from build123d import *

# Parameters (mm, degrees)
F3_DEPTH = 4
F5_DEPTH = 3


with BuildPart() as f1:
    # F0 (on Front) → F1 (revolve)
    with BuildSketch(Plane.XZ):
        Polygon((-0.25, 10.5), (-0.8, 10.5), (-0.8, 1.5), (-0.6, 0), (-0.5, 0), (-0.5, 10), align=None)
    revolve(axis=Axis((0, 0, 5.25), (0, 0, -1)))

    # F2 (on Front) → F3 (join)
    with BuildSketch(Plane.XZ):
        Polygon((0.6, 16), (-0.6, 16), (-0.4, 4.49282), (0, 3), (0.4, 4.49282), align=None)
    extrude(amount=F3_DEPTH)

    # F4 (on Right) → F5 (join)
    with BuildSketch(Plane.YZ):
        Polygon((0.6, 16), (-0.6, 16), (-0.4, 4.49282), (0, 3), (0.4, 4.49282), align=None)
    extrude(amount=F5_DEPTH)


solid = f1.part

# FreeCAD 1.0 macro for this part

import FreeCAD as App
import Part
import Sketcher

V = App.Vector
Q = App.Units.Quantity

doc = App.newDocument("Part")
body = doc.addObject("PartDesign::Body", "Body")

sketch1 = doc.addObject("Sketcher::SketchObject", "Sketch")
body.addObject(sketch1)
sketch1.AttachmentSupport = (doc.XZ_Plane, [""])
sketch1.MapMode = "FlatFace"
sketch1.addGeometry([
    Part.LineSegment(V(-0.25, 10.5, 0), V(-0.8, 10.5, 0)),
    Part.LineSegment(V(-0.8, 10.5, 0), V(-0.8, 1.5, 0)),
    Part.LineSegment(V(-0.8, 1.5, 0), V(-0.6, 0, 0)),
    Part.LineSegment(V(-0.6, 0, 0), V(-0.5, 0, 0)),
    Part.LineSegment(V(-0.5, 0, 0), V(-0.5, 10, 0)),
    Part.LineSegment(V(-0.5, 10, 0), V(-0.25, 10.5, 0)),
], False)
sketch1.addConstraint([
    Sketcher.Constraint("Coincident", 0, 2, 1, 1),
    Sketcher.Constraint("Coincident", 1, 2, 2, 1),
    Sketcher.Constraint("Coincident", 2, 2, 3, 1),
    Sketcher.Constraint("Coincident", 3, 2, 4, 1),
    Sketcher.Constraint("Coincident", 4, 2, 5, 1),
    Sketcher.Constraint("Coincident", 5, 2, 0, 1),
    Sketcher.Constraint("Horizontal", 0),
    Sketcher.Constraint("Vertical", 1),
    Sketcher.Constraint("Horizontal", 3),
    Sketcher.Constraint("Vertical", 4),
    Sketcher.Constraint("PointOnObject", 2, 2, -1),
    Sketcher.Constraint("DistanceY", 1, 2, 1, 1, Q("9 mm")),
    Sketcher.Constraint("DistanceY", 4, 1, 4, 2, Q("10 mm")),
    Sketcher.Constraint("DistanceX", 3, 1, 3, 2, Q("0.1 mm")),
    Sketcher.Constraint("DistanceX", 0, 2, 0, 1, Q("0.55 mm")),
    Sketcher.Constraint("DistanceX", 0, 2, -1, 1, Q("0.8 mm")),
    Sketcher.Constraint("DistanceY", -1, 1, 0, 2, Q("10.5 mm")),
    Sketcher.Constraint("DistanceX", 2, 2, -1, 1, Q("0.6 mm")),
])
revolution = doc.addObject("PartDesign::Revolution", "Revolution")
body.addObject(revolution)
revolution.Profile = sketch1
revolution.ReferenceAxis = (sketch1, ["V_Axis"])
revolution.Angle = 360

sketch2 = doc.addObject("Sketcher::SketchObject", "Sketch001")
body.addObject(sketch2)
sketch2.AttachmentSupport = (doc.XZ_Plane, [""])
sketch2.MapMode = "FlatFace"
sketch2.addGeometry([
    Part.LineSegment(V(0.6, 16, 0), V(-0.6, 16, 0)),
    Part.LineSegment(V(-0.6, 16, 0), V(-0.4, 4.5, 0)),
    Part.LineSegment(V(-0.4, 4.5, 0), V(0, 3, 0)),
    Part.LineSegment(V(0, 3, 0), V(0.4, 4.5, 0)),
    Part.LineSegment(V(0.4, 4.5, 0), V(0.6, 16, 0)),
], False)
sketch2.addConstraint([
    Sketcher.Constraint("Coincident", 0, 2, 1, 1),
    Sketcher.Constraint("Coincident", 1, 2, 2, 1),
    Sketcher.Constraint("Coincident", 2, 2, 3, 1),
    Sketcher.Constraint("Coincident", 3, 2, 4, 1),
    Sketcher.Constraint("Coincident", 4, 2, 0, 1),
    Sketcher.Constraint("Horizontal", 0),
    Sketcher.Constraint("Symmetric", 1, 2, 3, 2, -2),
    Sketcher.Constraint("PointOnObject", 2, 2, -2),
    Sketcher.Constraint("Equal", 1, 4),
    Sketcher.Constraint("Angle", 2, Q("-74.999997 deg")),
    Sketcher.Constraint("DistanceX", 0, 2, 0, 1, Q("1.2 mm")),
    Sketcher.Constraint("DistanceY", -1, 1, 0, 2, Q("16 mm")),
    Sketcher.Constraint("DistanceY", -1, 1, 2, 2, Q("3 mm")),
    Sketcher.Constraint("DistanceX", 0, 2, 3, 2, Q("1 mm")),
])
pad1 = doc.addObject("PartDesign::Pad", "Pad")
body.addObject(pad1)
pad1.Profile = sketch2
pad1.Length = 4

sketch3 = doc.addObject("Sketcher::SketchObject", "Sketch002")
body.addObject(sketch3)
sketch3.AttachmentSupport = (doc.YZ_Plane, [""])
sketch3.MapMode = "FlatFace"
sketch3.addGeometry([
    Part.LineSegment(V(0.6, 16, 0), V(-0.6, 16, 0)),
    Part.LineSegment(V(-0.6, 16, 0), V(-0.4, 4.5, 0)),
    Part.LineSegment(V(-0.4, 4.5, 0), V(0, 3, 0)),
    Part.LineSegment(V(0, 3, 0), V(0.4, 4.5, 0)),
    Part.LineSegment(V(0.4, 4.5, 0), V(0.6, 16, 0)),
], False)
sketch3.addConstraint([
    Sketcher.Constraint("Coincident", 0, 2, 1, 1),
    Sketcher.Constraint("Coincident", 1, 2, 2, 1),
    Sketcher.Constraint("Coincident", 2, 2, 3, 1),
    Sketcher.Constraint("Coincident", 3, 2, 4, 1),
    Sketcher.Constraint("Coincident", 4, 2, 0, 1),
    Sketcher.Constraint("Horizontal", 0),
    Sketcher.Constraint("Symmetric", 1, 2, 3, 2, -2),
    Sketcher.Constraint("PointOnObject", 2, 2, -2),
    Sketcher.Constraint("Equal", 1, 4),
    Sketcher.Constraint("Angle", 2, Q("-74.999997 deg")),
    Sketcher.Constraint("DistanceX", 0, 2, 0, 1, Q("1.2 mm")),
    Sketcher.Constraint("DistanceY", -1, 1, 0, 2, Q("16 mm")),
    Sketcher.Constraint("DistanceY", -1, 1, 2, 2, Q("3 mm")),
    Sketcher.Constraint("DistanceX", 0, 2, 3, 2, Q("1 mm")),
])
pad2 = doc.addObject("PartDesign::Pad", "Pad001")
body.addObject(pad2)
pad2.Profile = sketch3
pad2.Length = 3

doc.recompute()
